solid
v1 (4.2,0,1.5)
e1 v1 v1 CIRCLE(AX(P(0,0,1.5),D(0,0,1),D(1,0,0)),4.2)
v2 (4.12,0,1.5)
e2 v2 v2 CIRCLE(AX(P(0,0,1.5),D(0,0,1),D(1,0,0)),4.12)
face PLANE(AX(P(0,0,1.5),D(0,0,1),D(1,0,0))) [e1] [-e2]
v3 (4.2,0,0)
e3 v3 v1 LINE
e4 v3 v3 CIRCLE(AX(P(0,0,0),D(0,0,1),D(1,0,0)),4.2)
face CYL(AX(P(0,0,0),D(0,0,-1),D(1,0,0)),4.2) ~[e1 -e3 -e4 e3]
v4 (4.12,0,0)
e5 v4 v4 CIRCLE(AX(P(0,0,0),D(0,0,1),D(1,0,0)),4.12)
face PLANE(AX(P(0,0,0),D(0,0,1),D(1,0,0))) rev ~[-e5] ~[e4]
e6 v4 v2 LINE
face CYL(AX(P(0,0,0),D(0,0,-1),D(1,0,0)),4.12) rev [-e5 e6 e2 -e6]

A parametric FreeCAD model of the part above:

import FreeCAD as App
import Part
import Sketcher
Q = App.Units.Quantity

doc = App.newDocument("Part")
body = doc.addObject("PartDesign::Body", "Body")

# Sketch on XY plane
sketch1 = body.newObject("Sketcher::SketchObject", "Sketch")
sketch1.AttachmentSupport = (doc.getObject("XY_Plane"), [""])
sketch1.MapMode = "FlatFace"
sketch1.addGeometry([
    Part.Circle(App.Vector(0, 0, 0), App.Vector(0, 0, 1), 4.2),
    Part.Circle(App.Vector(0, 0, 0), App.Vector(0, 0, 1), 4.1),
], False)
sketch1.addConstraint([
    Sketcher.Constraint("Coincident", 0, 3, -1, 1),
    Sketcher.Constraint("Coincident", 1, 3, -1, 1),
    Sketcher.Constraint("Diameter", 0, Q("8.4 mm")),
    Sketcher.Constraint("Diameter", 1, Q("8.24 mm")),
])
pad1 = body.newObject("PartDesign::Pad", "Pad")
pad1.Profile = sketch1
pad1.Length = 1.5

doc.recompute()
